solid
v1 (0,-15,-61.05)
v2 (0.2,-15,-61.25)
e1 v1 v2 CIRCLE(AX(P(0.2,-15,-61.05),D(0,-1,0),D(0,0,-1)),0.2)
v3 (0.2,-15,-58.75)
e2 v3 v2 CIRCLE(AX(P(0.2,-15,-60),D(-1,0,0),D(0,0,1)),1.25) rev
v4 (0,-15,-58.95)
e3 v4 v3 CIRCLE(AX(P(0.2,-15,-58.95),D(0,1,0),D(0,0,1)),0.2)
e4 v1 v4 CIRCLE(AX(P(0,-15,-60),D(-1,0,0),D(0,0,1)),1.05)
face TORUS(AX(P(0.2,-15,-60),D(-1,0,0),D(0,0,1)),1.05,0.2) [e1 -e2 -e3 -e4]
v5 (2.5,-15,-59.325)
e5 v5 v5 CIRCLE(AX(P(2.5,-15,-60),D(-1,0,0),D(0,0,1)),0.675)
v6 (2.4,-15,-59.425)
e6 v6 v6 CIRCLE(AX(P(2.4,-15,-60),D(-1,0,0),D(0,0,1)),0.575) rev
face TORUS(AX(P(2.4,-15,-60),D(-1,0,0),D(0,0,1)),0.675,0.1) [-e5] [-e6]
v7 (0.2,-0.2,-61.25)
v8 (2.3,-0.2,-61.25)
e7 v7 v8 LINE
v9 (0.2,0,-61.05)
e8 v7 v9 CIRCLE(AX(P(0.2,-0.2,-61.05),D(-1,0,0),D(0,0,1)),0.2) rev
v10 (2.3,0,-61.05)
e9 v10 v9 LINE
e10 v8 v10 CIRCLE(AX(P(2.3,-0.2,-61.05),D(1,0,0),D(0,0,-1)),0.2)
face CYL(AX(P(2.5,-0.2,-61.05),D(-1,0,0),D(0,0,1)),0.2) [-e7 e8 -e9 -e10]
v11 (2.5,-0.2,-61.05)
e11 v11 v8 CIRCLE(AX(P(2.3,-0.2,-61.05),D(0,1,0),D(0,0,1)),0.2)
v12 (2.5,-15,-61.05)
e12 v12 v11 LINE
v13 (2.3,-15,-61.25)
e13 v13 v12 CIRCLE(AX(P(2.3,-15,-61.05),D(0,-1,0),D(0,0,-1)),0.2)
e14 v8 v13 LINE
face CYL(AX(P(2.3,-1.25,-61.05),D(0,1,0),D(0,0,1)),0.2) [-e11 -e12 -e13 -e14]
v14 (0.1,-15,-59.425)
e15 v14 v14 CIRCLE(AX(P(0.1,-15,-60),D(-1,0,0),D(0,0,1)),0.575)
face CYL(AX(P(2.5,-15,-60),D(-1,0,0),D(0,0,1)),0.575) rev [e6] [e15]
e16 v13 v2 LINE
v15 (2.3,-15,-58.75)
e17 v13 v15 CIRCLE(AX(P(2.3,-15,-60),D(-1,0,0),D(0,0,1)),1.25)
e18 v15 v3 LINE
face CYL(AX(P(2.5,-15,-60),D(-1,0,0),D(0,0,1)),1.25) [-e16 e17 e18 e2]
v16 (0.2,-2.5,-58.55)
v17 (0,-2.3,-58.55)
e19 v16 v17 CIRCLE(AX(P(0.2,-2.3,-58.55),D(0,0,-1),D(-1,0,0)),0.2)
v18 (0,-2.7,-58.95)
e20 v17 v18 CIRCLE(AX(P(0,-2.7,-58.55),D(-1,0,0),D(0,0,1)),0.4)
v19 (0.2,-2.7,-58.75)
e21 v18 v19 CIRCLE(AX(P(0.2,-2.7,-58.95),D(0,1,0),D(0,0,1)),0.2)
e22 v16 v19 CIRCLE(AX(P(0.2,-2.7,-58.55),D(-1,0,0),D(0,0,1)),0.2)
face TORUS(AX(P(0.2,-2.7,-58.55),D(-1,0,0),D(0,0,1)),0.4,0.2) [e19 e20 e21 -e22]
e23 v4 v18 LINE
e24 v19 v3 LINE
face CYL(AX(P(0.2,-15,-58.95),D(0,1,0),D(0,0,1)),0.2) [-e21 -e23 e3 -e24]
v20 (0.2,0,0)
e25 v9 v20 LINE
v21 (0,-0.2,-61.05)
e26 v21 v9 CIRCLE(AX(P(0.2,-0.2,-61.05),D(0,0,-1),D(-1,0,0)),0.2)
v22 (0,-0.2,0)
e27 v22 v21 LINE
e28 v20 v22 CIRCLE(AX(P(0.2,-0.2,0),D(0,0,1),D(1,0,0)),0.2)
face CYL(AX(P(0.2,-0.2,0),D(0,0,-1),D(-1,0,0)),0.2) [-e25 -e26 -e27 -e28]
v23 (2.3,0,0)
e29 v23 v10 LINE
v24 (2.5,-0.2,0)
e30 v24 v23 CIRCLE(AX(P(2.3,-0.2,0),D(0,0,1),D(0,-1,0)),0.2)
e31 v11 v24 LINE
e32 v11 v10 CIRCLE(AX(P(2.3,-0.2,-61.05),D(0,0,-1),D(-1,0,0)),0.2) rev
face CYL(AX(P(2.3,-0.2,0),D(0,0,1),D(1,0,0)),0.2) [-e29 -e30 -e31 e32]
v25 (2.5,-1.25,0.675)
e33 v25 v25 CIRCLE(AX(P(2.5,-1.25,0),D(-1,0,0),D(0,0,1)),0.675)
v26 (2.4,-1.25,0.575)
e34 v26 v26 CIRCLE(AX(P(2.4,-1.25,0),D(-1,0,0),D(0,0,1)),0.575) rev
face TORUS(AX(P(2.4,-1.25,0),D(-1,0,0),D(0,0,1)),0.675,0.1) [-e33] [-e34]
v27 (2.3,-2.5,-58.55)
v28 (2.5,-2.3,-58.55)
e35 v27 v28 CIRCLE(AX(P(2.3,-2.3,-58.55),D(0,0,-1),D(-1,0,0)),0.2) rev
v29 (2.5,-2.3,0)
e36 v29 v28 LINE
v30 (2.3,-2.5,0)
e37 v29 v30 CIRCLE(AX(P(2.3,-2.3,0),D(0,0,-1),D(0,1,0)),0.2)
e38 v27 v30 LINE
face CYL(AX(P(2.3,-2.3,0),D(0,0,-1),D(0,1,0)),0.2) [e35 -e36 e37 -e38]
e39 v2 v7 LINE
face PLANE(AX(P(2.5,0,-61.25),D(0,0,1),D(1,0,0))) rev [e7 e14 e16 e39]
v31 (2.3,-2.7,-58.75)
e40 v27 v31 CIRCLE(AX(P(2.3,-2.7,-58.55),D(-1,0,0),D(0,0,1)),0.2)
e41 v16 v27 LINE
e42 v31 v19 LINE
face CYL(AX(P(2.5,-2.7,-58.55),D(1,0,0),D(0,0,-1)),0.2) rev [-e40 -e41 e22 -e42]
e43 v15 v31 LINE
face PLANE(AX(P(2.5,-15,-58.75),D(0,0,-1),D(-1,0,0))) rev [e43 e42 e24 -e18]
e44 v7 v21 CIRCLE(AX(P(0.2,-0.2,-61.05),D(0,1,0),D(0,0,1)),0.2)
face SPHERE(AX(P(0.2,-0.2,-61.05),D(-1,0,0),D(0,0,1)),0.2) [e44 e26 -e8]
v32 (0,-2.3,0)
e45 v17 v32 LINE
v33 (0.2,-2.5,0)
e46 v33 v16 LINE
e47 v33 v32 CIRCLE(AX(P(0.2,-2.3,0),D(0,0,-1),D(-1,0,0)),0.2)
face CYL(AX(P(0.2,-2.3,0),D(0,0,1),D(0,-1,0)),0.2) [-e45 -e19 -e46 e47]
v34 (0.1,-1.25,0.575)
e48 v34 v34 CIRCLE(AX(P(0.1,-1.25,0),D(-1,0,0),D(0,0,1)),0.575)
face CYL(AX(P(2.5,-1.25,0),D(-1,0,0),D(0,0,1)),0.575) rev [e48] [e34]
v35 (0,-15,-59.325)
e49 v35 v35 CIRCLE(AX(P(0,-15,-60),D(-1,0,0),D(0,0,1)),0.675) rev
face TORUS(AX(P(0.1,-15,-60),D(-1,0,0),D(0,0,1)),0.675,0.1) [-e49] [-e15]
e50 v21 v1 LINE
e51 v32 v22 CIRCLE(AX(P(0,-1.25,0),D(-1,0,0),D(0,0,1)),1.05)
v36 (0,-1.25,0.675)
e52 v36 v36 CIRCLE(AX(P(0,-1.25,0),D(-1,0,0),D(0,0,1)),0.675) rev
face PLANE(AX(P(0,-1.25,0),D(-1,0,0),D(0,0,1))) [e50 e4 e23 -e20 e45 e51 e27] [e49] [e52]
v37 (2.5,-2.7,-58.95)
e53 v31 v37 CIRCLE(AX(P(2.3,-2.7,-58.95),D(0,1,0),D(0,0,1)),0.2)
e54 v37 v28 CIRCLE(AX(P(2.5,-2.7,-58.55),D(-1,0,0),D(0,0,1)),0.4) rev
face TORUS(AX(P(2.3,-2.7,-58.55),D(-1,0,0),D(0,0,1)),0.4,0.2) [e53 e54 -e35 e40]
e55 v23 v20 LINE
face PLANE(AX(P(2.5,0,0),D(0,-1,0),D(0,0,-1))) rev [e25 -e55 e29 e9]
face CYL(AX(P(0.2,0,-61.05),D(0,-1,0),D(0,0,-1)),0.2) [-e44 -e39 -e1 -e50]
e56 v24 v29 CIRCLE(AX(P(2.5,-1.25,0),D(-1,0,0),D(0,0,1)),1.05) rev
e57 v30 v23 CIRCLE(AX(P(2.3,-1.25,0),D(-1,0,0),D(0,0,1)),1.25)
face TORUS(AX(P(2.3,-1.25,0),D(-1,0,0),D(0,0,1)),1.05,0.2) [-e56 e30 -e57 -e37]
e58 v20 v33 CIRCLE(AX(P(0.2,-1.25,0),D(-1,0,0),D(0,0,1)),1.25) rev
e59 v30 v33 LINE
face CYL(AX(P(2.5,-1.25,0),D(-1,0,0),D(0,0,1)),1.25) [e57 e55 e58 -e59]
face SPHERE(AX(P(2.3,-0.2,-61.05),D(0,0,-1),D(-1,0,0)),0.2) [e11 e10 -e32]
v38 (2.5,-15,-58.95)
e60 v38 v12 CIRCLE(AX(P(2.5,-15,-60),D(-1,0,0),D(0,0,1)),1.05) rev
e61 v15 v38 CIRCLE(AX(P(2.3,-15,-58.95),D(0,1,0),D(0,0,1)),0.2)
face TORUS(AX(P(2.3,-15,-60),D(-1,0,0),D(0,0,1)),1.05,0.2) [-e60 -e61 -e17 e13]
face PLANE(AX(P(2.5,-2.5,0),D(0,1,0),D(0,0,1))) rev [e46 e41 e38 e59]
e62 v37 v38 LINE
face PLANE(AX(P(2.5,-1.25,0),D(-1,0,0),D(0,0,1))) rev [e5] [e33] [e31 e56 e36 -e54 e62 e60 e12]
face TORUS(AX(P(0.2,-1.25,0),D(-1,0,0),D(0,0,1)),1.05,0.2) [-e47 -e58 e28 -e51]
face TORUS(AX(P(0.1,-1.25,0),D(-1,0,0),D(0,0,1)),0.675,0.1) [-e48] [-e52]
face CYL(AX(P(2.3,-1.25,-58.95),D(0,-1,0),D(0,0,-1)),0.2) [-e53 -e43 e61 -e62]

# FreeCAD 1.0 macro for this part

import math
import FreeCAD as App
import Part
import Sketcher
from FreeCAD import Vector
Q = App.Units.Quantity


def edges_at(feature, points):
    """Names of the edges that pass closest to the given points."""
    edges = feature.Shape.Edges
    near = lambda p: min(range(len(edges)), key=lambda i: edges[i].distToShape(Part.Vertex(*p))[0])
    return sorted({f"Edge{near(p) + 1}" for p in points})

doc = App.newDocument("Part")
body = doc.addObject("PartDesign::Body", "Body")

sketch1 = body.newObject("Sketcher::SketchObject", "Sketch")
sketch1.AttachmentSupport = (doc.getObject("YZ_Plane"), [""])
sketch1.MapMode = "FlatFace"
sketch1.addGeometry([
    Part.LineSegment(Vector(0, -61.2, 0), Vector(0, 0, 0)),
    Part.ArcOfCircle(Part.Circle(Vector(-1.2, 0, 0), Vector(0, 0, 1), 1.2), math.radians(0), math.radians(180)),
    Part.LineSegment(Vector(-2.5, 0, 0), Vector(-2.5, -58.8, 0)),
    Part.LineSegment(Vector(-2.5, -58.8, 0), Vector(-15, -58.8, 0)),
    Part.ArcOfCircle(Part.Circle(Vector(-15, -60, 0), Vector(0, 0, 1), 1.2), math.radians(90), math.radians(270)),
    Part.LineSegment(Vector(-15, -61.2, 0), Vector(0, -61.2, 0)),
    Part.Circle(Vector(-15, -60, 0), Vector(0, 0, 1), 0.6),
    Part.Circle(Vector(-1.2, 0, 0), Vector(0, 0, 1), 0.6),
], False)
sketch1.addConstraint([
    Sketcher.Constraint("Tangent", 0, 2, 1, 1),
    Sketcher.Constraint("Tangent", 1, 2, 2, 1),
    Sketcher.Constraint("Coincident", 2, 2, 3, 1),
    Sketcher.Constraint("Tangent", 3, 2, 4, 1),
    Sketcher.Constraint("Tangent", 4, 2, 5, 1),
    Sketcher.Constraint("Coincident", 5, 2, 0, 1),
    Sketcher.Constraint("Vertical", 0),
    Sketcher.Constraint("Vertical", 2),
    Sketcher.Constraint("Horizontal", 3),
    Sketcher.Constraint("Horizontal", 5),
    Sketcher.Constraint("Coincident", 0, 2, -1, 1),
    Sketcher.Constraint("Coincident", 6, 3, 4, 3),
    Sketcher.Constraint("Coincident", 7, 3, 1, 3),
    Sketcher.Constraint("Equal", 1, 4),
    Sketcher.Constraint("Equal", 6, 7),
    Sketcher.Constraint("Diameter", 6, Q("1.15 mm")),
    Sketcher.Constraint("DistanceX", 5, 1, 5, 2, Q("15 mm")),
    Sketcher.Constraint("Radius", 1, Q("1.25 mm")),
    Sketcher.Constraint("DistanceY", 4, 3, -1, 1, Q("60 mm")),
])
pad1 = body.newObject("PartDesign::Pad", "Pad")
pad1.Profile = sketch1
pad1.Length = 2.5
doc.recompute()

fillet = body.newObject("PartDesign::Fillet", "Fillet")
fillet.Base = (pad1, edges_at(pad1, [
    (0, -1.25, 0.575),
    (2.5, -1.25, 0.575),
    (0, -15, -59.425),
    (2.5, -15, -59.425),
]))
fillet.Radius = 0.1
doc.recompute()

fillet2 = body.newObject("PartDesign::Fillet", "Fillet001")
fillet2.Base = (fillet, edges_at(fillet, [
    (0, -1.25, 1.25),
    (1.25, 0, -61.25),
    (2.5, -8.75, -58.75),
    (1.25, -2.5, -58.75),
    (2.5, -16.25, -60),
    (2.5, -7.5, -61.25),
    (2.5, 0, -30.625),
    (2.5, -1.25, 1.25),
    (0, 0, -30.625),
    (0, -7.5, -61.25),
    (0, -16.25, -60),
    (2.5, -2.5, -29.375),
    (0, -8.75, -58.75),
    (0, -2.5, -29.375),
]))
fillet2.Radius = 0.2

doc.recompute()
